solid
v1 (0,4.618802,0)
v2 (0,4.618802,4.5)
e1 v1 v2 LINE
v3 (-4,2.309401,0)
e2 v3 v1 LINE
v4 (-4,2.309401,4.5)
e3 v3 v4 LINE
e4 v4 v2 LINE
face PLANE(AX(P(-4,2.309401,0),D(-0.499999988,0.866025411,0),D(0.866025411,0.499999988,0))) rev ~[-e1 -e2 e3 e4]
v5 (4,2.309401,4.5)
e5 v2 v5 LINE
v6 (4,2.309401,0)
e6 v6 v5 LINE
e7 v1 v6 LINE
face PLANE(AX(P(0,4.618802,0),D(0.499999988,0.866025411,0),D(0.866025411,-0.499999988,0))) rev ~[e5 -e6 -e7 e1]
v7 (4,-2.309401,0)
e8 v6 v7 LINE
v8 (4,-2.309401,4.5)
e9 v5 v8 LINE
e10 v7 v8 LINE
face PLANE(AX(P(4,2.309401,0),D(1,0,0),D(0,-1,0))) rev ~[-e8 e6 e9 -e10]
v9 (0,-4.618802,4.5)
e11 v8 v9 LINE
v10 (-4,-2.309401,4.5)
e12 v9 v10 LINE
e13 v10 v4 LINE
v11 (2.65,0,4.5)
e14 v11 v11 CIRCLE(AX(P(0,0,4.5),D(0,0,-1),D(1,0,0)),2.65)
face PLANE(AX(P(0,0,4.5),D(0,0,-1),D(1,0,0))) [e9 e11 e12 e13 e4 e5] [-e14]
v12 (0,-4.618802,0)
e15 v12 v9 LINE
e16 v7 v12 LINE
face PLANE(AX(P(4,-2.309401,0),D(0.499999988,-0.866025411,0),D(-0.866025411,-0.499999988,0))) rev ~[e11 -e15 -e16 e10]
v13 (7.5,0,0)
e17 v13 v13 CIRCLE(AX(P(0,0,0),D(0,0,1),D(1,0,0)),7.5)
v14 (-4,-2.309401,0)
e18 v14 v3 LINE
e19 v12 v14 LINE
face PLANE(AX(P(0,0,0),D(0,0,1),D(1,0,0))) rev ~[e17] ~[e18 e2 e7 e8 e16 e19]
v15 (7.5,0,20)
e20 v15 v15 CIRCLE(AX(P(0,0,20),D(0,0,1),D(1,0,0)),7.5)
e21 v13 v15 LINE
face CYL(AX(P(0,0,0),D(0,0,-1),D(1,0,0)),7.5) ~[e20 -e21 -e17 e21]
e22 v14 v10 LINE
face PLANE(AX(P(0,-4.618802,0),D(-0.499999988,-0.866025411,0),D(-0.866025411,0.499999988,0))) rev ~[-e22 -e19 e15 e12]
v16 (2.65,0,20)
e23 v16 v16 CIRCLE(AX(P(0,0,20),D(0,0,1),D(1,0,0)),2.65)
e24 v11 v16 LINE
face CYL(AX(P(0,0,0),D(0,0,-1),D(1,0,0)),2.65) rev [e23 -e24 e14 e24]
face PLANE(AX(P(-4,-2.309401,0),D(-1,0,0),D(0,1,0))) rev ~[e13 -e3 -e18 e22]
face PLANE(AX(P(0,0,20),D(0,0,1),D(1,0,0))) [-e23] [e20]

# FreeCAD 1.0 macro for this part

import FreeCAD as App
import Part
import Sketcher
from FreeCAD import Vector
Q = App.Units.Quantity


def add_polygon(sketch, points):
    """Adds a closed chain of lines whose ends are joined by coincident constraints."""
    first, n = sketch.GeometryCount, len(points)
    for a, b in zip(points, points[1:] + points[:1]):
        sketch.addGeometry(Part.LineSegment(App.Vector(*a, 0), App.Vector(*b, 0)), False)
    for i in range(n):
        sketch.addConstraint(Sketcher.Constraint("Coincident", first + i, 2, first + (i + 1) % n, 1))

doc = App.newDocument("Part")
body = doc.addObject("PartDesign::Body", "Body")

sketch1 = body.newObject("Sketcher::SketchObject", "Sketch")
sketch1.AttachmentSupport = (doc.getObject("XY_Plane"), [""])
sketch1.MapMode = "FlatFace"
sketch1.addGeometry([
    Part.Circle(Vector(0, 0, 0), Vector(0, 0, 1), 7.5),
    Part.Circle(Vector(0, 0, 0), Vector(0, 0, 1), 2.65),
], False)
sketch1.addConstraint([
    Sketcher.Constraint("Coincident", 0, 3, -1, 1),
    Sketcher.Constraint("Coincident", 1, 3, -1, 1),
    Sketcher.Constraint("Diameter", 0, Q("15 mm")),
    Sketcher.Constraint("Diameter", 1, Q("5.3 mm")),
])
pad1 = body.newObject("PartDesign::Pad", "Pad")
pad1.Profile = sketch1
pad1.Length = 20

sketch2 = body.newObject("Sketcher::SketchObject", "Sketch001")
sketch2.AttachmentSupport = (doc.getObject("XY_Plane"), [""])
sketch2.MapMode = "FlatFace"
add_polygon(sketch2, [(4, -2.309401), (0, -4.618802), (-4, -2.309401), (-4, 2.309401), (0, 4.618802), (4, 2.309401)])
sketch2.addConstraint([
    Sketcher.Constraint("Vertical", 2),
    Sketcher.Constraint("Vertical", 5),
    Sketcher.Constraint("Symmetric", 0, 2, 3, 2, -1, 1),
    Sketcher.Constraint("Symmetric", 1, 2, 4, 2, -1, 1),
    Sketcher.Constraint("PointOnObject", 0, 2, -2),
    Sketcher.Constraint("Parallel", 0, 3),
    Sketcher.Constraint("Horizontal", 2, 2, 4, 2),
    Sketcher.Constraint("Angle", 0, Q("-150.000001 deg")),
    Sketcher.Constraint("DistanceX", 1, 2, -1, 1, Q("4 mm")),
    Sketcher.Constraint("DistanceY", 2, 1, 2, 2, Q("4.618802 mm")),
])
pocket1 = body.newObject("PartDesign::Pocket", "Pocket")
pocket1.Profile = sketch2
pocket1.Length = 4.5
pocket1.Reversed = True

doc.recompute()
